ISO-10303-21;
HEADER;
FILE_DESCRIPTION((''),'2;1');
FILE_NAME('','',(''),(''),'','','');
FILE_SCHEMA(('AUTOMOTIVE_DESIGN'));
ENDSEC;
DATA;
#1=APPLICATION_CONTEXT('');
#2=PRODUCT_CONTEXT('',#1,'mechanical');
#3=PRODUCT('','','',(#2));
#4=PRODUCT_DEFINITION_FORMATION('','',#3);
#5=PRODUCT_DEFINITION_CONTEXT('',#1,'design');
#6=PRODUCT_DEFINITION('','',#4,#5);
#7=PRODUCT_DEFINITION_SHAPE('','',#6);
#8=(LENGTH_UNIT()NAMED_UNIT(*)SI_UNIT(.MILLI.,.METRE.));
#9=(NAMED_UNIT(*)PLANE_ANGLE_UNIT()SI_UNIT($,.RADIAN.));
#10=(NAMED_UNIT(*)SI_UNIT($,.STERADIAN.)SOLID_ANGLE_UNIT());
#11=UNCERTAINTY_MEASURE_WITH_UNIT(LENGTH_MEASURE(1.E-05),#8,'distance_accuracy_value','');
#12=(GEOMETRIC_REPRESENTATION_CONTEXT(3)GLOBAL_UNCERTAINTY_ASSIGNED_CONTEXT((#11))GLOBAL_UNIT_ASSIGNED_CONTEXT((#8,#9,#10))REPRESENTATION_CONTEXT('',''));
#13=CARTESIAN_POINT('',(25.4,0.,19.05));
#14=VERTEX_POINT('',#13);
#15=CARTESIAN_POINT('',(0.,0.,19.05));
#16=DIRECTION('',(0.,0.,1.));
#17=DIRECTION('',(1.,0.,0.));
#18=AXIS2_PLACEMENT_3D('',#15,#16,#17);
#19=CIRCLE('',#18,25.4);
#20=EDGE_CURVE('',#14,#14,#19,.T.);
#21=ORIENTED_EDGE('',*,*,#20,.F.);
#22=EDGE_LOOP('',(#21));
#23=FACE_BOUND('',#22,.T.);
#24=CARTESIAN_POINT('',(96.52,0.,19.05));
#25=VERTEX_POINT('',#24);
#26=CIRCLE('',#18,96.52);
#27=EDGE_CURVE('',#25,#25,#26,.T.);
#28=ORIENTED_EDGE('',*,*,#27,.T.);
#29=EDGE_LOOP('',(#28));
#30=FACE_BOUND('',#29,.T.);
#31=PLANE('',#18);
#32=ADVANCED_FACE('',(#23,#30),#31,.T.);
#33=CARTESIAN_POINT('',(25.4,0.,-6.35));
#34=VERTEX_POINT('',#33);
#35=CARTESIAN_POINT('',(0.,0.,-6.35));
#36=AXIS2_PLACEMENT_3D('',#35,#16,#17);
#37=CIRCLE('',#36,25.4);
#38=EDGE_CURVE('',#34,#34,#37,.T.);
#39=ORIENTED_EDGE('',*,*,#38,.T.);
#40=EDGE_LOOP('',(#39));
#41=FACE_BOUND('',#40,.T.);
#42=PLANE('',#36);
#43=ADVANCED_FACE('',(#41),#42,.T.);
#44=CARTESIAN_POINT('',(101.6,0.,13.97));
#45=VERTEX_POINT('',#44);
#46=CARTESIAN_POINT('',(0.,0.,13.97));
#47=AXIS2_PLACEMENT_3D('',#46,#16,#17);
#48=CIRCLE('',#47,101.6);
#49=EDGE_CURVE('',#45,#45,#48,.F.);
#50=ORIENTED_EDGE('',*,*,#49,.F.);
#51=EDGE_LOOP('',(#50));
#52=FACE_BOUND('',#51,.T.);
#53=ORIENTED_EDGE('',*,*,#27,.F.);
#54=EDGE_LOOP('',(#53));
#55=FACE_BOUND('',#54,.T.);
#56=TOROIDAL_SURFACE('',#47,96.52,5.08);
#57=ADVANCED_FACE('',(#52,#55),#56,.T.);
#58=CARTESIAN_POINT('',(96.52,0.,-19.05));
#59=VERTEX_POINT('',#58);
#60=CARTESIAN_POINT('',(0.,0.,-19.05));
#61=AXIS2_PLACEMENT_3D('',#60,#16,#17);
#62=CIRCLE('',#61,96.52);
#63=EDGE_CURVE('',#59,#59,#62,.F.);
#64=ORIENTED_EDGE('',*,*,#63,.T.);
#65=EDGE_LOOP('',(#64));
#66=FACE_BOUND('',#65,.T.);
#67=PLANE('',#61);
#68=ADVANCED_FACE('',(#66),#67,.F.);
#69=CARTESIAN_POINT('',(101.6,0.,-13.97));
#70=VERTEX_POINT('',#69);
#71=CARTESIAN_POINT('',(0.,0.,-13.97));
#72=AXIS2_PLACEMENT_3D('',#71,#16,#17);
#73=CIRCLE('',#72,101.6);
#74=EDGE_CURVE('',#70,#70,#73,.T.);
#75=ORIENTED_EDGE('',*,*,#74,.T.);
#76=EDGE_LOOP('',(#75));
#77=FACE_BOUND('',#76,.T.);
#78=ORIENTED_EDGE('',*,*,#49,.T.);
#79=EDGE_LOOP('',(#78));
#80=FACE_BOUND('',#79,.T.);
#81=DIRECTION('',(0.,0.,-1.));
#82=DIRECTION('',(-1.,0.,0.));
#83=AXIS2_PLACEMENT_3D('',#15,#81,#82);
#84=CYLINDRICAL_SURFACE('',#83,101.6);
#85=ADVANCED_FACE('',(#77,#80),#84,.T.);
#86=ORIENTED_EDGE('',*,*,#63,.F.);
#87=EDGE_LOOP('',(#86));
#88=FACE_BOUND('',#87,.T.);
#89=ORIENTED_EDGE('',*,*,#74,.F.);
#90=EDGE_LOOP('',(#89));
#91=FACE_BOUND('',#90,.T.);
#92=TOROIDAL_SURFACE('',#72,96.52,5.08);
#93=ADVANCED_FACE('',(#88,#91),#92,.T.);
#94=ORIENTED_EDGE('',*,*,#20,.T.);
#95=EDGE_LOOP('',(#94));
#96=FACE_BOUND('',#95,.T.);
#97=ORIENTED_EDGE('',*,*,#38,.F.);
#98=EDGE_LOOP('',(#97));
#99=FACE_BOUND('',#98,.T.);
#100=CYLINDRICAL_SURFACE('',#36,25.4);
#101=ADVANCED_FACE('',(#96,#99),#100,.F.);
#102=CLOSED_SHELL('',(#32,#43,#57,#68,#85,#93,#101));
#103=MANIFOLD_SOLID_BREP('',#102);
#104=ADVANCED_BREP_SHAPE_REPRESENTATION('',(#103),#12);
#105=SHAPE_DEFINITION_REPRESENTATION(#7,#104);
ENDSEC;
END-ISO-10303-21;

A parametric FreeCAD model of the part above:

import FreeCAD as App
import Part
import Sketcher
Q = App.Units.Quantity


def edges_at(feature, points):
    """Names of the edges that pass closest to the given points."""
    edges = feature.Shape.Edges
    near = lambda p: min(range(len(edges)), key=lambda i: edges[i].distToShape(Part.Vertex(*p))[0])
    return sorted({f"Edge{near(p) + 1}" for p in points})

doc = App.newDocument("Part")
params = doc.addObject("Spreadsheet::Sheet", "Params")
for row, (alias, value) in enumerate([
    ("sketch1_diameter", "8 in"),
    ("pad1_length", "1.5 in"),
    ("fillet_radius", "0.2 in"),
    ("sketch2_diameter", "2 in"),
    ("pocket1_length", "1 in"),
], start=1):
    params.set(f"A{row}", alias)
    params.set(f"B{row}", "=" + value)
    params.setAlias(f"B{row}", alias)

body = doc.addObject("PartDesign::Body", "Body")

sketch1 = body.newObject("Sketcher::SketchObject", "Sketch")
sketch1.AttachmentSupport = (doc.getObject("XY_Plane"), [""])
sketch1.MapMode = "FlatFace"
sketch1.addGeometry(Part.Circle(App.Vector(0, 0, 0), App.Vector(0, 0, 1), 102), False)
sketch1.addConstraint(Sketcher.Constraint("Coincident", 0, 3, -1, 1))
sketch1.addConstraint(Sketcher.Constraint("Diameter", 0, Q("8 in")))
sketch1.setExpression("Constraints[1]", "Params.sketch1_diameter")
pad1 = body.newObject("PartDesign::Pad", "Pad")
pad1.Profile = sketch1
pad1.setExpression("Length", "Params.pad1_length")
pad1.Midplane = True
doc.recompute()

fillet = body.newObject("PartDesign::Fillet", "Fillet")
fillet.Base = (pad1, edges_at(pad1, [(-101.6, 0, -19.05), (-101.6, 0, 19.05)]))
fillet.setExpression("Radius", "Params.fillet_radius")

sketch2 = body.newObject("Sketcher::SketchObject", "Sketch001")
sketch2.AttachmentSupport = (doc.getObject("XY_Plane"), [""])
sketch2.MapMode = "FlatFace"
sketch2.AttachmentOffset = App.Placement(App.Vector(0, 0, 0.75 * 25.4), App.Rotation())
sketch2.addGeometry(Part.Circle(App.Vector(0, 0, 0), App.Vector(0, 0, 1), 25), False)
sketch2.addConstraint(Sketcher.Constraint("Coincident", 0, 3, -1, 1))
sketch2.addConstraint(Sketcher.Constraint("Diameter", 0, Q("2 in")))
sketch2.setExpression("Constraints[1]", "Params.sketch2_diameter")
pocket1 = body.newObject("PartDesign::Pocket", "Pocket")
pocket1.Profile = sketch2
pocket1.setExpression("Length", "Params.pocket1_length")

doc.recompute()
